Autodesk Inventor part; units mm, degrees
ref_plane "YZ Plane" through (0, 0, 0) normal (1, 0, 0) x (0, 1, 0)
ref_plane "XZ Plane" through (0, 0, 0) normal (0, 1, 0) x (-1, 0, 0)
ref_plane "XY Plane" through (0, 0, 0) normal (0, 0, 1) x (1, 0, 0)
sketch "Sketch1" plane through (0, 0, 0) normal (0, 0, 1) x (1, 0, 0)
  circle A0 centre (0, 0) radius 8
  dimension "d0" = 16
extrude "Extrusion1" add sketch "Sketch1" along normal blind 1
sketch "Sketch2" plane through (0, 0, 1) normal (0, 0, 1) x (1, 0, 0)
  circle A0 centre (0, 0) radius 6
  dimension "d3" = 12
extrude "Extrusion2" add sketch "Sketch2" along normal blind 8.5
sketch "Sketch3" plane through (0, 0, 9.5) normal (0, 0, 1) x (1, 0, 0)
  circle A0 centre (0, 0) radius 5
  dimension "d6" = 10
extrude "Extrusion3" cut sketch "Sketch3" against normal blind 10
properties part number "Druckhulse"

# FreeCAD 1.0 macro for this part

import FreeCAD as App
import Part
import Sketcher
from FreeCAD import Vector
Q = App.Units.Quantity

doc = App.newDocument("Part")
body = doc.addObject("PartDesign::Body", "Body")

sketch1 = body.newObject("Sketcher::SketchObject", "Sketch")
sketch1.AttachmentSupport = (doc.getObject("XY_Plane"), [""])
sketch1.MapMode = "FlatFace"
sketch1.addGeometry(Part.Circle(Vector(0, 0, 0), Vector(0, 0, 1), 8), False)
sketch1.addConstraint(Sketcher.Constraint("Coincident", 0, 3, -1, 1))
sketch1.addConstraint(Sketcher.Constraint("Diameter", 0, Q("16 mm")))
pad1 = body.newObject("PartDesign::Pad", "Pad")
pad1.Profile = sketch1
pad1.Length = 1

sketch2 = body.newObject("Sketcher::SketchObject", "Sketch001")
sketch2.AttachmentSupport = (doc.getObject("XY_Plane"), [""])
sketch2.MapMode = "FlatFace"
sketch2.AttachmentOffset = App.Placement(Vector(0, 0, 1), App.Rotation())
sketch2.addGeometry(Part.Circle(Vector(0, 0, 0), Vector(0, 0, 1), 6), False)
sketch2.addConstraint(Sketcher.Constraint("Coincident", 0, 3, -1, 1))
sketch2.addConstraint(Sketcher.Constraint("Diameter", 0, Q("12 mm")))
pad2 = body.newObject("PartDesign::Pad", "Pad001")
pad2.Profile = sketch2
pad2.Length = 8.5

sketch3 = body.newObject("Sketcher::SketchObject", "Sketch002")
sketch3.AttachmentSupport = (doc.getObject("XY_Plane"), [""])
sketch3.MapMode = "FlatFace"
sketch3.AttachmentOffset = App.Placement(Vector(0, 0, 9.5), App.Rotation())
sketch3.addGeometry(Part.Circle(Vector(0, 0, 0), Vector(0, 0, 1), 5), False)
sketch3.addConstraint(Sketcher.Constraint("Coincident", 0, 3, -1, 1))
sketch3.addConstraint(Sketcher.Constraint("Diameter", 0, Q("10 mm")))
pocket1 = body.newObject("PartDesign::Pocket", "Pocket")
pocket1.Profile = sketch3
pocket1.Length = 10

doc.recompute()
